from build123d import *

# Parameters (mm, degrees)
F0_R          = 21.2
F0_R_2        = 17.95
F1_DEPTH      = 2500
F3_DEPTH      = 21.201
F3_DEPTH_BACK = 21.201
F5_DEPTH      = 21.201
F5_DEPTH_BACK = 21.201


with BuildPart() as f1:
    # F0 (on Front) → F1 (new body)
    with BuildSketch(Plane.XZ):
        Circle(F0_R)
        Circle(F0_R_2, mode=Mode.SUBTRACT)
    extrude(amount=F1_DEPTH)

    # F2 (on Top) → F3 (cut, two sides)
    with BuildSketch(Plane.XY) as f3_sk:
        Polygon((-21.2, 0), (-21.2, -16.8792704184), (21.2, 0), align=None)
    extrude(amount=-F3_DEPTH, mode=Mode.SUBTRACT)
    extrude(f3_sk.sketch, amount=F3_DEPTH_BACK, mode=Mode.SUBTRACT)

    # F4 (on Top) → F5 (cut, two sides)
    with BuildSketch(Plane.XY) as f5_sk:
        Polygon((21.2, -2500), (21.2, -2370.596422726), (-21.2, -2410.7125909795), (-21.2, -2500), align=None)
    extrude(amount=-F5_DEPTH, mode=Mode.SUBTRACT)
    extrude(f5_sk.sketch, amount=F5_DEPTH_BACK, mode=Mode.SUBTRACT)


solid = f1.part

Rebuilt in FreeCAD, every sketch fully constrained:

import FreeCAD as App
import Part
import Sketcher

V = App.Vector
Q = App.Units.Quantity

doc = App.newDocument("Part")
body = doc.addObject("PartDesign::Body", "Body")

sketch1 = body.newObject("Sketcher::SketchObject", "Sketch")
sketch1.AttachmentSupport = (doc.getObject("XZ_Plane"), [""])
sketch1.MapMode = "FlatFace"
sketch1.addGeometry(Part.Circle(V(0, 0, 0), V(0, 0, 1), 21), False)
sketch1.addGeometry(Part.Circle(V(0, 0, 0), V(0, 0, 1), 18), False)
sketch1.addConstraint(Sketcher.Constraint("Coincident", 0, 3, -1, 1))
sketch1.addConstraint(Sketcher.Constraint("Coincident", 1, 3, -1, 1))
sketch1.addConstraint(Sketcher.Constraint("Diameter", 0, Q("42.4 mm")))
sketch1.addConstraint(Sketcher.Constraint("Diameter", 1, Q("35.9 mm")))
pad1 = body.newObject("PartDesign::Pad", "Pad")
pad1.Profile = sketch1
pad1.Length = 2500

sketch2 = body.newObject("Sketcher::SketchObject", "Sketch001")
sketch2.AttachmentSupport = (doc.getObject("XY_Plane"), [""])
sketch2.MapMode = "FlatFace"
sketch2.addGeometry(Part.LineSegment(V(-21, 0, 0), V(-21, -17, 0)), False)
sketch2.addGeometry(Part.LineSegment(V(-21, -17, 0), V(21, 0, 0)), False)
sketch2.addGeometry(Part.LineSegment(V(21, 0, 0), V(-21, 0, 0)), False)
sketch2.addConstraint(Sketcher.Constraint("Coincident", 0, 2, 1, 1))
sketch2.addConstraint(Sketcher.Constraint("Coincident", 1, 2, 2, 1))
sketch2.addConstraint(Sketcher.Constraint("Coincident", 2, 2, 0, 1))
sketch2.addConstraint(Sketcher.Constraint("Vertical", 0))
sketch2.addConstraint(Sketcher.Constraint("Horizontal", 2))
sketch2.addConstraint(Sketcher.Constraint("Symmetric", 1, 2, 2, 2, -1, 1))
sketch2.addConstraint(Sketcher.Constraint("DistanceX", 2, 2, 2, 1, Q("42.4 mm")))
sketch2.addConstraint(Sketcher.Constraint("DistanceY", 0, 2, 0, 1, Q("16.87927 mm")))
pocket1 = body.newObject("PartDesign::Pocket", "Pocket")
pocket1.Profile = sketch2
pocket1.Type = "ThroughAll"
pocket1.Midplane = True

sketch3 = body.newObject("Sketcher::SketchObject", "Sketch002")
sketch3.AttachmentSupport = (doc.getObject("XY_Plane"), [""])
sketch3.MapMode = "FlatFace"
sketch3.addGeometry(Part.LineSegment(V(21, -2500, 0), V(21, -2371, 0)), False)
sketch3.addGeometry(Part.LineSegment(V(21, -2371, 0), V(-21, -2411, 0)), False)
sketch3.addGeometry(Part.LineSegment(V(-21, -2411, 0), V(-21, -2500, 0)), False)
sketch3.addGeometry(Part.LineSegment(V(-21, -2500, 0), V(21, -2500, 0)), False)
sketch3.addConstraint(Sketcher.Constraint("Coincident", 0, 2, 1, 1))
sketch3.addConstraint(Sketcher.Constraint("Coincident", 1, 2, 2, 1))
sketch3.addConstraint(Sketcher.Constraint("Coincident", 2, 2, 3, 1))
sketch3.addConstraint(Sketcher.Constraint("Coincident", 3, 2, 0, 1))
sketch3.addConstraint(Sketcher.Constraint("Vertical", 0))
sketch3.addConstraint(Sketcher.Constraint("Vertical", 2))
sketch3.addConstraint(Sketcher.Constraint("Horizontal", 3))
sketch3.addConstraint(Sketcher.Constraint("DistanceX", 3, 1, 3, 2, Q("42.4 mm")))
sketch3.addConstraint(Sketcher.Constraint("DistanceY", 2, 2, -1, 1, Q("2500 mm")))
sketch3.addConstraint(Sketcher.Constraint("DistanceX", -1, 1, 0, 2, Q("21.2 mm")))
sketch3.addConstraint(Sketcher.Constraint("DistanceY", 2, 2, 2, 1, Q("89.287409 mm")))
sketch3.addConstraint(Sketcher.Constraint("DistanceY", 0, 1, 0, 2, Q("129.403577 mm")))
pocket2 = body.newObject("PartDesign::Pocket", "Pocket001")
pocket2.Profile = sketch3
pocket2.Type = "ThroughAll"
pocket2.Midplane = True

doc.recompute()
